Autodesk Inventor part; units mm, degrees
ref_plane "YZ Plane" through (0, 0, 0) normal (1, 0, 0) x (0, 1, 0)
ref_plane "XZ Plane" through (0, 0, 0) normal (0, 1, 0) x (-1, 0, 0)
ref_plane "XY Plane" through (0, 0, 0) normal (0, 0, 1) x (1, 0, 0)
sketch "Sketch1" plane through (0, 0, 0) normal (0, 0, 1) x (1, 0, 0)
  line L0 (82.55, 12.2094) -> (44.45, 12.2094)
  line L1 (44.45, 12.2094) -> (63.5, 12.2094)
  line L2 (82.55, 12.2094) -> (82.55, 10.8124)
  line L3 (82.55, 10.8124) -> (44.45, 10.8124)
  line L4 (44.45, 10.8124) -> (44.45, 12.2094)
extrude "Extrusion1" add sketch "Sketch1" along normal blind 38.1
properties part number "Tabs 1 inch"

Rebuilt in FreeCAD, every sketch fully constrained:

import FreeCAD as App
import Part
import Sketcher
from FreeCAD import Vector
Q = App.Units.Quantity

doc = App.newDocument("Part")
params = doc.addObject("Spreadsheet::Sheet", "Params")
for row, (alias, value) in enumerate([
    ("sketch1_width", "1.5 in"),
    ("sketch1_height", "0.055 in"),
    ("pad1_length", "1.5 in"),
], start=1):
    params.set(f"A{row}", alias)
    params.set(f"B{row}", "=" + value)
    params.setAlias(f"B{row}", alias)

body = doc.addObject("PartDesign::Body", "Body")

sketch1 = body.newObject("Sketcher::SketchObject", "Sketch")
sketch1.AttachmentSupport = (doc.getObject("XY_Plane"), [""])
sketch1.MapMode = "FlatFace"
sketch1.addGeometry(Part.LineSegment(Vector(82.5, 10.8, 0), Vector(82.5, 12.2, 0)), False)
sketch1.addGeometry(Part.LineSegment(Vector(82.5, 12.2, 0), Vector(44.5, 12.2, 0)), False)
sketch1.addGeometry(Part.LineSegment(Vector(44.5, 12.2, 0), Vector(44.5, 10.8, 0)), False)
sketch1.addGeometry(Part.LineSegment(Vector(44.5, 10.8, 0), Vector(82.5, 10.8, 0)), False)
sketch1.addConstraint(Sketcher.Constraint("Coincident", 0, 2, 1, 1))
sketch1.addConstraint(Sketcher.Constraint("Coincident", 1, 2, 2, 1))
sketch1.addConstraint(Sketcher.Constraint("Coincident", 2, 2, 3, 1))
sketch1.addConstraint(Sketcher.Constraint("Coincident", 3, 2, 0, 1))
sketch1.addConstraint(Sketcher.Constraint("Vertical", 0))
sketch1.addConstraint(Sketcher.Constraint("Horizontal", 1))
sketch1.addConstraint(Sketcher.Constraint("Vertical", 2))
sketch1.addConstraint(Sketcher.Constraint("Horizontal", 3))
sketch1.addConstraint(Sketcher.Constraint("DistanceX", 1, 2, 1, 1, Q("1.5 in")))
sketch1.addConstraint(Sketcher.Constraint("DistanceY", 0, 1, 0, 2, Q("0.055 in")))
sketch1.addConstraint(Sketcher.Constraint("DistanceX", -1, 1, 0, 2, Q("3.25 in")))
sketch1.addConstraint(Sketcher.Constraint("DistanceY", -1, 1, 0, 2, Q("12.2094 mm")))
sketch1.setExpression("Constraints[8]", "Params.sketch1_width")
sketch1.setExpression("Constraints[9]", "Params.sketch1_height")
pad1 = body.newObject("PartDesign::Pad", "Pad")
pad1.Profile = sketch1
pad1.setExpression("Length", "Params.pad1_length")

doc.recompute()
